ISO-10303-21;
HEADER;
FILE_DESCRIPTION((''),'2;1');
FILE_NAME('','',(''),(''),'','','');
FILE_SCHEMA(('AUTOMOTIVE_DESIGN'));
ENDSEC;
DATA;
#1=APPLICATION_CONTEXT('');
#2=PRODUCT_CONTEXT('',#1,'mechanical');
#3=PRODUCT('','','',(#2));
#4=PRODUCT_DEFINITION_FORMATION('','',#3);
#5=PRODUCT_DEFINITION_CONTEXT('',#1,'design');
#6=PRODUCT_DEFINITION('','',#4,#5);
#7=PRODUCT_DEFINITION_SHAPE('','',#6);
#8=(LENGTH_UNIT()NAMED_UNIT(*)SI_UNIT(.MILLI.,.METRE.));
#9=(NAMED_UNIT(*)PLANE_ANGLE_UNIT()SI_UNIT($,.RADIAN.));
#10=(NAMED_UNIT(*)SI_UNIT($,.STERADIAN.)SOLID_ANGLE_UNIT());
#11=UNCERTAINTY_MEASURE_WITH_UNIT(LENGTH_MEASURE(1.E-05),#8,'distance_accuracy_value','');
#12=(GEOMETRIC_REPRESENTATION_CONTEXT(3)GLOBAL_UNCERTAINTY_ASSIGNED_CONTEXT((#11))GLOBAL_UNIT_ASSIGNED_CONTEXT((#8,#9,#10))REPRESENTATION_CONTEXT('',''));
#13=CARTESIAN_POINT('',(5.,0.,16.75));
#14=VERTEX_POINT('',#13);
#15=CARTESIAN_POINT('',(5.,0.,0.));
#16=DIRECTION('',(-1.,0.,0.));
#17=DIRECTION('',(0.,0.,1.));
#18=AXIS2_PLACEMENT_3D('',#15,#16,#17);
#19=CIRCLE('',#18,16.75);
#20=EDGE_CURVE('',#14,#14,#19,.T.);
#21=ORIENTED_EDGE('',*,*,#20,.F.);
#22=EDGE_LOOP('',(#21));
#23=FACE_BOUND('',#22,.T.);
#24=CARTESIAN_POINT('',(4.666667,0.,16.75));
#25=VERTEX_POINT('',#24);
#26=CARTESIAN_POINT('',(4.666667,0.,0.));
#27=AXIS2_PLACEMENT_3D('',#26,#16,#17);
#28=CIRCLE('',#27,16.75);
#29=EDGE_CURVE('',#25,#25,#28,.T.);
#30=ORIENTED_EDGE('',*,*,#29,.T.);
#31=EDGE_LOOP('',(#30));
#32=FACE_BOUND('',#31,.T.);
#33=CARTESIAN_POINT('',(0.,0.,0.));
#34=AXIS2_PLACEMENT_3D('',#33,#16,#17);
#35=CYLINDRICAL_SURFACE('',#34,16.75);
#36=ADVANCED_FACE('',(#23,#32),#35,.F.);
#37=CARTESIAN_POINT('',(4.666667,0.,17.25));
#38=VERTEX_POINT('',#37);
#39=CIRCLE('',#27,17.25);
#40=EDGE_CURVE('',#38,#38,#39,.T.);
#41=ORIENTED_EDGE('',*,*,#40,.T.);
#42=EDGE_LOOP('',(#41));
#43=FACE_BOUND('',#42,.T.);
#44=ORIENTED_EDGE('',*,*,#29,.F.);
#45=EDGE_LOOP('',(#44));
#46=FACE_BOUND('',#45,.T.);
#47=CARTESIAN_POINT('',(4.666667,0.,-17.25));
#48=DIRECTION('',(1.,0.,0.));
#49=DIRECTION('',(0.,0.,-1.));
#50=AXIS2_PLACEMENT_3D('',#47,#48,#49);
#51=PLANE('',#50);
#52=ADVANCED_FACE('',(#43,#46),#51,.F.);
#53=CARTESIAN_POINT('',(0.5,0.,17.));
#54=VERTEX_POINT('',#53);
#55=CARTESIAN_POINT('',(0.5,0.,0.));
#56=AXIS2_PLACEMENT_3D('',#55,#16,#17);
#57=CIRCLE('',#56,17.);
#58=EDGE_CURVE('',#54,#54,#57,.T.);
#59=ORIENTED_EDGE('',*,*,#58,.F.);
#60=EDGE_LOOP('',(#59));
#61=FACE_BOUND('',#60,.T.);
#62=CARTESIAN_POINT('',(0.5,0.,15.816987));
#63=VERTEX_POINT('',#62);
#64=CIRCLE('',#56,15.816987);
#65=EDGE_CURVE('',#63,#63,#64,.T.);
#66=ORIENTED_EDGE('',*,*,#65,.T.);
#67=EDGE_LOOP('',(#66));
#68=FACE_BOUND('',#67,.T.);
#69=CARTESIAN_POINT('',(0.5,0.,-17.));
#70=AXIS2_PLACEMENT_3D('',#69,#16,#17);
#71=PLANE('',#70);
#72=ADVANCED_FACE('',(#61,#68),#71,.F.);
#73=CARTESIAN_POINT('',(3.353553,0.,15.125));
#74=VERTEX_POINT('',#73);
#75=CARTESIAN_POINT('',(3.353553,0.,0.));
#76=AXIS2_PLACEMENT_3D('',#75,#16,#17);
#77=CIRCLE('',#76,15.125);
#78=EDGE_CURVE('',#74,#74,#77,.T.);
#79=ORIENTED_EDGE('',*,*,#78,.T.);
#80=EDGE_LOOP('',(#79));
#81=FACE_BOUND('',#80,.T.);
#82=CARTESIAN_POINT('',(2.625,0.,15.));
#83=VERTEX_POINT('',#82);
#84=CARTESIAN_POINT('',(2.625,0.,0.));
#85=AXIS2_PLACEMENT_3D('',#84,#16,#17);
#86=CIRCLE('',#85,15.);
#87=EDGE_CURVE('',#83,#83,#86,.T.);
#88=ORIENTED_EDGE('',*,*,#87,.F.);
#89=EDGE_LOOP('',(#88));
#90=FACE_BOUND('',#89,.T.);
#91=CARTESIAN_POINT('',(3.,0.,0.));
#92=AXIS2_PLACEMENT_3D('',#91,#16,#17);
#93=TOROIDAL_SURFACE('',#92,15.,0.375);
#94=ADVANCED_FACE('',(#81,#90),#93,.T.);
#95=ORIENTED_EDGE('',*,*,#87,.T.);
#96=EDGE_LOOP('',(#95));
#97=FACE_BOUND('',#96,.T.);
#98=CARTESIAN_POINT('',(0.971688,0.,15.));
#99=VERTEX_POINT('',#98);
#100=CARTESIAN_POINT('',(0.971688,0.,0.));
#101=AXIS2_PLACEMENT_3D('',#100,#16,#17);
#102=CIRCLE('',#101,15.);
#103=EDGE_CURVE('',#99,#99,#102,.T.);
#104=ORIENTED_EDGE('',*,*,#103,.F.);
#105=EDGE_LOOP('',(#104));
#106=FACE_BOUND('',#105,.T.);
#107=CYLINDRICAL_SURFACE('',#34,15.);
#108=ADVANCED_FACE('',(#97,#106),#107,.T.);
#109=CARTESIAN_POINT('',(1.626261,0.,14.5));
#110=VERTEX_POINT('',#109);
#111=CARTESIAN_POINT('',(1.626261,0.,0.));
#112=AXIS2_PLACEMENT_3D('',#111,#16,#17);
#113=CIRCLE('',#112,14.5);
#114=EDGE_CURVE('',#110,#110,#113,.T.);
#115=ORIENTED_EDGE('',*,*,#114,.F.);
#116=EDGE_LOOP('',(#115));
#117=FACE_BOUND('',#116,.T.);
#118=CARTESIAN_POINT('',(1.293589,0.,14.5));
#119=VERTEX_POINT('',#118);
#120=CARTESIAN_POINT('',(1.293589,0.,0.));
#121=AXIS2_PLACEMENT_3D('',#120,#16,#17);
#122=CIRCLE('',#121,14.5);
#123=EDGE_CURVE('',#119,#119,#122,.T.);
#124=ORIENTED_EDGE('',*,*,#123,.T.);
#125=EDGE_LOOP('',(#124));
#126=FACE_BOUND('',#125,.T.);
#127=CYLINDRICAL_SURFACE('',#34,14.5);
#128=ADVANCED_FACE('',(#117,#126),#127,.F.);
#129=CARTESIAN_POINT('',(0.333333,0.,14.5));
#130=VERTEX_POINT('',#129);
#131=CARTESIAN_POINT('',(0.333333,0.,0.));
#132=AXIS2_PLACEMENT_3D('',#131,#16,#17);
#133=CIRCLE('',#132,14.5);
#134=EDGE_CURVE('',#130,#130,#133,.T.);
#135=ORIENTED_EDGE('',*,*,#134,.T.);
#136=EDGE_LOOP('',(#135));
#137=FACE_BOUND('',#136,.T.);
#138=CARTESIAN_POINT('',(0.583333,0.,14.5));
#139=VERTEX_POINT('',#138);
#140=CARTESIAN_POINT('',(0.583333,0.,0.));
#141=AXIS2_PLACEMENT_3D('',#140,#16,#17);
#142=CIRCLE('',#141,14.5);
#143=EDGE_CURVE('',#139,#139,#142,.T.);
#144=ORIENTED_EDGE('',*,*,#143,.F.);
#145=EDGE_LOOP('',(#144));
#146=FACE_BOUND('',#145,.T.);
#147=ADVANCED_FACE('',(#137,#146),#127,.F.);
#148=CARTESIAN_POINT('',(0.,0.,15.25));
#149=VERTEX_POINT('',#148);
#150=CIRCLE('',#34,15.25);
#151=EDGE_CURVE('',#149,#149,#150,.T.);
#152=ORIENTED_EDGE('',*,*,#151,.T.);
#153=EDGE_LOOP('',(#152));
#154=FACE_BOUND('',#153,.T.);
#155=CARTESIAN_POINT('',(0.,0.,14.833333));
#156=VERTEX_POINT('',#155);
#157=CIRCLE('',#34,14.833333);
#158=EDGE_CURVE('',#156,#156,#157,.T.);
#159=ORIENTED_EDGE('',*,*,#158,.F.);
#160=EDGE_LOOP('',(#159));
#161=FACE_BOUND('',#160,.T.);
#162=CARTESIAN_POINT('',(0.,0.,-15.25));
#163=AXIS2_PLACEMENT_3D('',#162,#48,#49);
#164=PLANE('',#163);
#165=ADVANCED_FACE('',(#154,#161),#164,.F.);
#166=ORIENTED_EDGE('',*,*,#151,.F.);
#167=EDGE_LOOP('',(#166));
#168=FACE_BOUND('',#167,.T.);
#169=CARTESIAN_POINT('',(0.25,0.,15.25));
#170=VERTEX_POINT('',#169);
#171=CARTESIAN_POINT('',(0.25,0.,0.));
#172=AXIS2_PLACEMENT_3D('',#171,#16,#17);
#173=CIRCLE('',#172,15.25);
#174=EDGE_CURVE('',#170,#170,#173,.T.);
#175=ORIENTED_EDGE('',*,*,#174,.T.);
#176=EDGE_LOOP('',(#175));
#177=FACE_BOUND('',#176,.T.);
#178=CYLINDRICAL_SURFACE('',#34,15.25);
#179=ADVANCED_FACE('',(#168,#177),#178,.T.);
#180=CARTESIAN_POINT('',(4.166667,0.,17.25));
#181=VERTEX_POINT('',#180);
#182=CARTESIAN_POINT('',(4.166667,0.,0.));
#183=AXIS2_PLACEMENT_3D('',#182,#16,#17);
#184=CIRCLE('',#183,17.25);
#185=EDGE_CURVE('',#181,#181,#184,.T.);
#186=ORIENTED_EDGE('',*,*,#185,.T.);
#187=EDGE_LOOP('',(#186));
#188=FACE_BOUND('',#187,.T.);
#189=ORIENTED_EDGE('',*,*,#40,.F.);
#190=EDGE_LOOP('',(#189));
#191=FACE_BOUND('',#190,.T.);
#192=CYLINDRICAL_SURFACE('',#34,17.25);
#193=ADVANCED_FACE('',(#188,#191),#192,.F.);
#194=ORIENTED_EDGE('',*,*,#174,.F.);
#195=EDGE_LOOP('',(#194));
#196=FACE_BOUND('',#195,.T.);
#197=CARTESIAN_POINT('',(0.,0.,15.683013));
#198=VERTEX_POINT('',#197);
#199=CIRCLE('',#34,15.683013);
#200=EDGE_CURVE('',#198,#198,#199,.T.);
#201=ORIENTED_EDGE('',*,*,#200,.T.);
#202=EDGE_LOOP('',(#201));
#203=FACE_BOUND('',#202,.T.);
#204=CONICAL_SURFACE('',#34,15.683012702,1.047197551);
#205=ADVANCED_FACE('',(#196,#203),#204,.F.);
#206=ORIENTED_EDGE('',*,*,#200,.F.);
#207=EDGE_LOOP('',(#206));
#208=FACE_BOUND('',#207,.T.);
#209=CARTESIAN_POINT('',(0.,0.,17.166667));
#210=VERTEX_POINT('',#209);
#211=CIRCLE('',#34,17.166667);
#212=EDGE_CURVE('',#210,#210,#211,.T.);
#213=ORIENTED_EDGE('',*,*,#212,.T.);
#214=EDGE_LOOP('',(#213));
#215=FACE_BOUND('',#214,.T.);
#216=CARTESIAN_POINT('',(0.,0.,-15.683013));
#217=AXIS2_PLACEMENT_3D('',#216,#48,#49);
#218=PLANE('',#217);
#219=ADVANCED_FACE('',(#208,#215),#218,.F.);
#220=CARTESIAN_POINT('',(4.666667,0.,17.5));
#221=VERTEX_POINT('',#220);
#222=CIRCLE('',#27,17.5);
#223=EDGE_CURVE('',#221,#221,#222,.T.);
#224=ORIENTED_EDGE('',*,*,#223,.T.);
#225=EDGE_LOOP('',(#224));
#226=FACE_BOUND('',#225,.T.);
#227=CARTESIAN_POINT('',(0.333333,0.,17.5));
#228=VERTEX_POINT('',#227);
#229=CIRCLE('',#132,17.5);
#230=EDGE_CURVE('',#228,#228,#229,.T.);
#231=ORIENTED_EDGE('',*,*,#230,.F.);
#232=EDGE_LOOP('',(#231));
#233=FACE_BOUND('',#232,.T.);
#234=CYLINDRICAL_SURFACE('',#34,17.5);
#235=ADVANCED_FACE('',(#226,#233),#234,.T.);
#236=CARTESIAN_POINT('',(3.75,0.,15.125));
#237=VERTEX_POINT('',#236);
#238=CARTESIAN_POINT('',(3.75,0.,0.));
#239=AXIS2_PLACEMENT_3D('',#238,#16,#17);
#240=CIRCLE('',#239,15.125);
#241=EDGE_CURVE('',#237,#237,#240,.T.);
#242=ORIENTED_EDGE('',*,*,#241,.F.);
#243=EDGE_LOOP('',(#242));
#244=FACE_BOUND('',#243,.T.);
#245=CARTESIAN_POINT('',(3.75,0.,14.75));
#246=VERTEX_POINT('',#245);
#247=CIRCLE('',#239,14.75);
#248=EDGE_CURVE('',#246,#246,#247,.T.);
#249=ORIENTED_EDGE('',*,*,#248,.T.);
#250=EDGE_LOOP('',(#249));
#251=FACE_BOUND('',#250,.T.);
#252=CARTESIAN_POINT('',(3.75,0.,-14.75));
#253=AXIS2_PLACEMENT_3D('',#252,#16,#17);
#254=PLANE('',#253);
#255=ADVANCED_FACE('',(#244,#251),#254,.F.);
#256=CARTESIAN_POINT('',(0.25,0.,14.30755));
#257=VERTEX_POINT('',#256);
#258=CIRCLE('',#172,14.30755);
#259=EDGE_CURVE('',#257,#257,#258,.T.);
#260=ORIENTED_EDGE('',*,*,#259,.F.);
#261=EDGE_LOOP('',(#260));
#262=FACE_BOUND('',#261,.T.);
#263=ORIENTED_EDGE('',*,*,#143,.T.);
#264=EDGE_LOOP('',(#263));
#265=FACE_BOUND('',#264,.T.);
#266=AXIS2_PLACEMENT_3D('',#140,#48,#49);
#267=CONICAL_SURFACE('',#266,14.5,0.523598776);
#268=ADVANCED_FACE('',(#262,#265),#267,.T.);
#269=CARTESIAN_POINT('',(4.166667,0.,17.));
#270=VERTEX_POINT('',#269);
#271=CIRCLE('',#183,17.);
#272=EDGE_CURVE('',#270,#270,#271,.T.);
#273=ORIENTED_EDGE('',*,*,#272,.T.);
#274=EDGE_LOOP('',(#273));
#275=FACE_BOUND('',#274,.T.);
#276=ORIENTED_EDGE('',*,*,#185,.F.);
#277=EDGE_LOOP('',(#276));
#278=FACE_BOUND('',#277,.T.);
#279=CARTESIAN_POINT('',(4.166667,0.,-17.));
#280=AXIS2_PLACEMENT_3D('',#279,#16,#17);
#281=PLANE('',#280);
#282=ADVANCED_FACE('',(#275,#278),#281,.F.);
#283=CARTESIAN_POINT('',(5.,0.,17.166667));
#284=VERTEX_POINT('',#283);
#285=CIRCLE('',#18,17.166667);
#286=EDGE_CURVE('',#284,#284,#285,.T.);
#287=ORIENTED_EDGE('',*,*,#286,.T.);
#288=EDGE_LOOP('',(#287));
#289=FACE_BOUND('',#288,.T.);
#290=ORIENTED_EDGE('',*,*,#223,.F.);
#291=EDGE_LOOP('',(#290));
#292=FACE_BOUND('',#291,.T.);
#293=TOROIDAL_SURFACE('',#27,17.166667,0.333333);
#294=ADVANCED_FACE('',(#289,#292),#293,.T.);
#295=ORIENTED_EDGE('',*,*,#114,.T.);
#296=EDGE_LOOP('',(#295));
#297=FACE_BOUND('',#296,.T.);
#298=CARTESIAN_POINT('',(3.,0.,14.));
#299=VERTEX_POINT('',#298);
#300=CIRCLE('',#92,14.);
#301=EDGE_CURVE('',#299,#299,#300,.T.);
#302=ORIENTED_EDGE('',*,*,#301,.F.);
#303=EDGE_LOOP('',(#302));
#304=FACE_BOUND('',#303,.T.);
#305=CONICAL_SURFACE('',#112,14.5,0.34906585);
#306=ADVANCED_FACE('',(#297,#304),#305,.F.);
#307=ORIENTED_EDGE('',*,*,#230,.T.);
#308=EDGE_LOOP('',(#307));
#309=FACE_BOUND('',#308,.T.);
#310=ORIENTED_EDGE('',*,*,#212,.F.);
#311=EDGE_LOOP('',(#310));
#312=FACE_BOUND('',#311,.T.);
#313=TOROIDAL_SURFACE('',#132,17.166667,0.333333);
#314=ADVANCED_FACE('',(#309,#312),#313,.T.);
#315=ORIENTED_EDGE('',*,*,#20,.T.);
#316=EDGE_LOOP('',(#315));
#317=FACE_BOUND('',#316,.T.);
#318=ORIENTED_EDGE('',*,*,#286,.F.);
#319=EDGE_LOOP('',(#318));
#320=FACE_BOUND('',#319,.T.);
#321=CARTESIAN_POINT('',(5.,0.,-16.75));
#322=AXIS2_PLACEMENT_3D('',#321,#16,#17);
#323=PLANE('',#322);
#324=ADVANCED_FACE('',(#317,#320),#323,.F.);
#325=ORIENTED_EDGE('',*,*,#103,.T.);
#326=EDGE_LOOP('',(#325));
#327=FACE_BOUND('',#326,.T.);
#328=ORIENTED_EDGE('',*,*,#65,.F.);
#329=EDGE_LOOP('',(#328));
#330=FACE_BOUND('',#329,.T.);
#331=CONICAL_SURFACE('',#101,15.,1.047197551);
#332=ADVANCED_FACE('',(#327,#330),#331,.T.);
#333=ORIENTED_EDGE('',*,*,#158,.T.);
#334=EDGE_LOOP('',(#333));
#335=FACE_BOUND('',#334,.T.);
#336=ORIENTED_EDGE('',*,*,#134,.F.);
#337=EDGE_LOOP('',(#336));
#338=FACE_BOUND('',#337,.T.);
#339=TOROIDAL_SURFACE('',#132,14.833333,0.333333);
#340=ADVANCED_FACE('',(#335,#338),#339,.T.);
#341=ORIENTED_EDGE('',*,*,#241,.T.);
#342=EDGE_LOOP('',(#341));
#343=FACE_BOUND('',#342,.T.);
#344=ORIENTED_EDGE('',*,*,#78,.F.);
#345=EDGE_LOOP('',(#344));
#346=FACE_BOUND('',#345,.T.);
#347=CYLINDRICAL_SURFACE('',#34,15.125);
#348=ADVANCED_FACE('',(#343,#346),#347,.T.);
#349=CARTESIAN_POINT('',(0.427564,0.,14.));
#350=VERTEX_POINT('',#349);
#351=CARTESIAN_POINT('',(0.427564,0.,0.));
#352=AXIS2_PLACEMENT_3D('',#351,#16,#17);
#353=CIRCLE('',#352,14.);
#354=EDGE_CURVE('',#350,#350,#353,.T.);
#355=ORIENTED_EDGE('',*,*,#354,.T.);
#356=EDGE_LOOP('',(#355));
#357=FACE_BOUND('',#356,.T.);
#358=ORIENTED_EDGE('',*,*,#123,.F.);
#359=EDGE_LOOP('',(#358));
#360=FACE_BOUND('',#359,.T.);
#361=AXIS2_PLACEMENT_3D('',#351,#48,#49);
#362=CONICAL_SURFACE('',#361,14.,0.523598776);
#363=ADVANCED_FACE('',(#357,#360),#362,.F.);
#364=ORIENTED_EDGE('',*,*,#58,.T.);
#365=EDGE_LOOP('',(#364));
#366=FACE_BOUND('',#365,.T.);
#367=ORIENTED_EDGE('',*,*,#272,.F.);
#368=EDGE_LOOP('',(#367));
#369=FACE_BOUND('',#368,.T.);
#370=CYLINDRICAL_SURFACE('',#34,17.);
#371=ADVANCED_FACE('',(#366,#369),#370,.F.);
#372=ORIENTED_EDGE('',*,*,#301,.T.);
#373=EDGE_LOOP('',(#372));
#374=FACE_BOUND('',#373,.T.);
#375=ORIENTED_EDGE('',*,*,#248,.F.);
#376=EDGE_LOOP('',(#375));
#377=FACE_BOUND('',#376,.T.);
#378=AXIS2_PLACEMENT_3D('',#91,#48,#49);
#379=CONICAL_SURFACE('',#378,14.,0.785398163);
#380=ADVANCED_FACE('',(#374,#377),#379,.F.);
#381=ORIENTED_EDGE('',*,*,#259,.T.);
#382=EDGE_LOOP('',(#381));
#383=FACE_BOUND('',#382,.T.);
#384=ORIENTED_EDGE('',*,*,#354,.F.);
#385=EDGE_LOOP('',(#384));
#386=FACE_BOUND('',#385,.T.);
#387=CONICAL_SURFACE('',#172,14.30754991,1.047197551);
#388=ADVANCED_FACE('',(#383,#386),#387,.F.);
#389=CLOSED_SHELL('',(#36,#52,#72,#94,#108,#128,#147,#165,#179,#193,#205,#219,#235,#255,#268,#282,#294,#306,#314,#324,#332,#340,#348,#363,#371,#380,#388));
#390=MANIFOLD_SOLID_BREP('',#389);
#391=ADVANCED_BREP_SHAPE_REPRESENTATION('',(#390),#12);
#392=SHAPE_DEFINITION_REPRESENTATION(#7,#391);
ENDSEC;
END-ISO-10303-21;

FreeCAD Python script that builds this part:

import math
import FreeCAD as App
import Part
import Sketcher
Q = App.Units.Quantity

doc = App.newDocument("Part")
body = doc.addObject("PartDesign::Body", "Body")

# Sketch on XZ plane
sketch1 = body.newObject("Sketcher::SketchObject", "Sketch")
sketch1.AttachmentSupport = (doc.getObject("XZ_Plane"), [""])
sketch1.MapMode = "FlatFace"
sketch1.addGeometry([
    Part.LineSegment(App.Vector(0, -17.166667, 0), App.Vector(0, -15.683013, 0)),  # 0
    Part.LineSegment(App.Vector(0, -15.683013, 0), App.Vector(0.25, -15.25, 0)),  # 1
    Part.LineSegment(App.Vector(0.25, -15.25, 0), App.Vector(0, -15.25, 0)),  # 2
    Part.LineSegment(App.Vector(0, -15.25, 0), App.Vector(0, -14.833333, 0)),  # 3
    Part.ArcOfCircle(Part.Circle(App.Vector(0.333333, -14.833333, 0), App.Vector(0, 0, 1), 0.333333), math.radians(90), math.radians(180)),  # 4
    Part.LineSegment(App.Vector(0.333333, -14.5, 0), App.Vector(0.583333, -14.5, 0)),  # 5
    Part.LineSegment(App.Vector(0.583333, -14.5, 0), App.Vector(0.25, -14.30755, 0)),  # 6
    Part.LineSegment(App.Vector(0.25, -14.30755, 0), App.Vector(0.427564, -14, 0)),  # 7
    Part.LineSegment(App.Vector(0.427564, -14, 0), App.Vector(1.293589, -14.5, 0)),  # 8
    Part.LineSegment(App.Vector(1.293589, -14.5, 0), App.Vector(1.626261, -14.5, 0)),  # 9
    Part.LineSegment(App.Vector(1.626261, -14.5, 0), App.Vector(3, -14, 0)),  # 10
    Part.LineSegment(App.Vector(3, -14, 0), App.Vector(3.75, -14.75, 0)),  # 11
    Part.LineSegment(App.Vector(3.75, -14.75, 0), App.Vector(3.75, -15.125, 0)),  # 12
    Part.LineSegment(App.Vector(3.75, -15.125, 0), App.Vector(3.353553, -15.125, 0)),  # 13
    Part.ArcOfCircle(Part.Circle(App.Vector(3, -15, 0), App.Vector(0, 0, 1), 0.375), math.radians(180), math.radians(340.528779)),  # 14
    Part.LineSegment(App.Vector(2.625, -15, 0), App.Vector(0.971688, -15, 0)),  # 15
    Part.LineSegment(App.Vector(0.971688, -15, 0), App.Vector(0.5, -15.816987, 0)),  # 16
    Part.LineSegment(App.Vector(0.5, -15.816987, 0), App.Vector(0.5, -17, 0)),  # 17
    Part.LineSegment(App.Vector(0.5, -17, 0), App.Vector(4.166667, -17, 0)),  # 18
    Part.LineSegment(App.Vector(4.166667, -17, 0), App.Vector(4.166667, -17.25, 0)),  # 19
    Part.LineSegment(App.Vector(4.166667, -17.25, 0), App.Vector(4.666667, -17.25, 0)),  # 20
    Part.LineSegment(App.Vector(4.666667, -17.25, 0), App.Vector(4.666667, -16.75, 0)),  # 21
    Part.LineSegment(App.Vector(4.666667, -16.75, 0), App.Vector(5, -16.75, 0)),  # 22
    Part.LineSegment(App.Vector(5, -16.75, 0), App.Vector(5, -17.166667, 0)),  # 23
    Part.ArcOfCircle(Part.Circle(App.Vector(4.666667, -17.166667, 0), App.Vector(0, 0, 1), 0.333333), math.radians(-90), math.radians(0)),  # 24
    Part.LineSegment(App.Vector(4.666667, -17.5, 0), App.Vector(0.333333, -17.5, 0)),  # 25
    Part.ArcOfCircle(Part.Circle(App.Vector(0.333333, -17.166667, 0), App.Vector(0, 0, 1), 0.333333), math.radians(-180), math.radians(-90)),  # 26
], False)
sketch1.addConstraint([
    Sketcher.Constraint("Coincident", 0, 2, 1, 1),
    Sketcher.Constraint("Coincident", 1, 2, 2, 1),
    Sketcher.Constraint("Coincident", 2, 2, 3, 1),
    Sketcher.Constraint("Tangent", 3, 2, 4, 2),
    Sketcher.Constraint("Tangent", 4, 1, 5, 1),
    Sketcher.Constraint("Coincident", 5, 2, 6, 1),
    Sketcher.Constraint("Coincident", 6, 2, 7, 1),
    Sketcher.Constraint("Coincident", 7, 2, 8, 1),
    Sketcher.Constraint("Coincident", 8, 2, 9, 1),
    Sketcher.Constraint("Coincident", 9, 2, 10, 1),
    Sketcher.Constraint("Coincident", 10, 2, 11, 1),
    Sketcher.Constraint("Coincident", 11, 2, 12, 1),
    Sketcher.Constraint("Coincident", 12, 2, 13, 1),
    Sketcher.Constraint("Coincident", 13, 2, 14, 2),
    Sketcher.Constraint("Coincident", 14, 1, 15, 1),
    Sketcher.Constraint("Coincident", 15, 2, 16, 1),
    Sketcher.Constraint("Coincident", 16, 2, 17, 1),
    Sketcher.Constraint("Coincident", 17, 2, 18, 1),
    Sketcher.Constraint("Coincident", 18, 2, 19, 1),
    Sketcher.Constraint("Coincident", 19, 2, 20, 1),
    Sketcher.Constraint("Coincident", 20, 2, 21, 1),
    Sketcher.Constraint("Coincident", 21, 2, 22, 1),
    Sketcher.Constraint("Coincident", 22, 2, 23, 1),
    Sketcher.Constraint("Tangent", 23, 2, 24, 2),
    Sketcher.Constraint("Tangent", 24, 1, 25, 1),
    Sketcher.Constraint("Tangent", 25, 2, 26, 2),
    Sketcher.Constraint("Tangent", 26, 1, 0, 1),
    Sketcher.Constraint("Vertical", 0),
    Sketcher.Constraint("Horizontal", 2),
    Sketcher.Constraint("Vertical", 3),
    Sketcher.Constraint("Horizontal", 5),
    Sketcher.Constraint("Horizontal", 9),
    Sketcher.Constraint("Vertical", 12),
    Sketcher.Constraint("Horizontal", 13),
    Sketcher.Constraint("Horizontal", 15),
    Sketcher.Constraint("Vertical", 17),
    Sketcher.Constraint("Horizontal", 18),
    Sketcher.Constraint("Vertical", 19),
    Sketcher.Constraint("Horizontal", 20),
    Sketcher.Constraint("Vertical", 21),
    Sketcher.Constraint("Horizontal", 22),
    Sketcher.Constraint("Vertical", 23),
    Sketcher.Constraint("Horizontal", 25),
    Sketcher.Constraint("Equal", 4, 24),
    Sketcher.Constraint("Equal", 24, 26),
    Sketcher.Constraint("PointOnObject", 0, 2, -2),
    Sketcher.Constraint("PointOnObject", 2, 2, -2),
    Sketcher.Constraint("Perpendicular", 1, 6),
    Sketcher.Constraint("Perpendicular", 6, 7),
    Sketcher.Constraint("Perpendicular", 7, 8),
    Sketcher.Constraint("Perpendicular", 8, 16),
    Sketcher.Constraint("Horizontal", 5, 2, 8, 2),
    Sketcher.Constraint("Horizontal", 7, 2, 10, 2),
    Sketcher.Constraint("Vertical", 1, 2, 6, 2),
    Sketcher.Constraint("Vertical", 14, 3, 10, 2),
    Sketcher.Constraint("Vertical", 24, 3, 20, 2),
    Sketcher.Constraint("Equal", 2, 5),
    Sketcher.Constraint("Equal", 5, 19),
    Sketcher.Constraint("Equal", 20, 21),
    Sketcher.Constraint("Equal", 3, 23),
    Sketcher.Constraint("Angle", 1, Q("60 deg")),
    Sketcher.Constraint("Angle", 10, Q("20 deg")),
    Sketcher.Constraint("Angle", 11, Q("-45 deg")),
    Sketcher.Constraint("Distance", 8, 1.0),
    Sketcher.Constraint("DistanceX", 20, 1, 20, 2, 0.5),
    Sketcher.Constraint("DistanceX", -1, 1, 14, 3, 3.0),
    Sketcher.Constraint("DistanceY", 14, 3, -1, 1, 15.0),
    Sketcher.Constraint("DistanceY", 7, 2, -1, 1, 14.0),
    Sketcher.Constraint("DistanceY", 14, 1, -1, 1, 15.0),
    Sketcher.Constraint("DistanceY", 17, 2, -1, 1, 17.0),
    Sketcher.Constraint("DistanceX", -1, 1, 22, 2, 5.0),
    Sketcher.Constraint("Radius", 14, 0.375),
    Sketcher.Constraint("Distance", 1, 0.5),
    Sketcher.Constraint("DistanceX", -1, 1, 16, 2, 0.5),
    Sketcher.Constraint("DistanceY", 24, 1, -1, 1, 17.5),
    Sketcher.Constraint("DistanceY", 19, 2, 11, 2, 2.5),
    Sketcher.Constraint("DistanceY", 12, 2, 12, 1, 0.375),
    Sketcher.Constraint("Radius", 4, 0.333333),
    Sketcher.Constraint("DistanceX", 15, 2, 8, 2, 0.321902),
])
revolution = body.newObject("PartDesign::Revolution", "Revolution")
revolution.Profile = sketch1
revolution.ReferenceAxis = (sketch1, ["H_Axis"])
revolution.Angle = 360

doc.recompute()
